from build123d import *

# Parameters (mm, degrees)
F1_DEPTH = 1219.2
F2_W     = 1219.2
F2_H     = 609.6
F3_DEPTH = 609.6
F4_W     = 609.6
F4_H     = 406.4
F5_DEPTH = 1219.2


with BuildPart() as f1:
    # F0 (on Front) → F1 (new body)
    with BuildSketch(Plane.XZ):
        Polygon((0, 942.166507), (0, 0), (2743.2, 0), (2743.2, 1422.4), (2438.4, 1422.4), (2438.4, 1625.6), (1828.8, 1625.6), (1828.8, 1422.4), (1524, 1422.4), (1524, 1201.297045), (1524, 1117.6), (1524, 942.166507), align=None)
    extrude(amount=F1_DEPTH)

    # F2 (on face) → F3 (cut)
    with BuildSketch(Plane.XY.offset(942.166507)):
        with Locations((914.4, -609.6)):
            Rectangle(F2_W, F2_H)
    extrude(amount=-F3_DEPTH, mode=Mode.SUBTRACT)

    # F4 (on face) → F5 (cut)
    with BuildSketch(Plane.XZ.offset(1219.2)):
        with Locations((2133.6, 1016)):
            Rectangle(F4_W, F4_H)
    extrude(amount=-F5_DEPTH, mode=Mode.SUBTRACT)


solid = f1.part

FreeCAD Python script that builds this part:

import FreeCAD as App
import Part
import Sketcher

V = App.Vector
Q = App.Units.Quantity

doc = App.newDocument("Part")
params = doc.addObject("Spreadsheet::Sheet", "Params")
for row, (alias, value) in enumerate([
    ("sketch1_width", "108 in"),
    ("sketch1_width2", "12 in"),
    ("sketch1_width3", "24 in"),
    ("sketch1_height", "56 in"),
    ("sketch1_height2", "8 in"),
    ("pad1_length", "48 in"),
    ("sketch2_width", "48 in"),
    ("sketch2_height", "24 in"),
    ("pocket1_length", "24 in"),
    ("sketch3_width", "24 in"),
    ("sketch3_height", "16 in"),
    ("pocket2_length", "48 in"),
], start=1):
    params.set(f"A{row}", alias)
    params.set(f"B{row}", "=" + value)
    params.setAlias(f"B{row}", alias)

body = doc.addObject("PartDesign::Body", "Body")

# Sketch on XZ plane
sketch1 = body.newObject("Sketcher::SketchObject", "Sketch")
sketch1.AttachmentSupport = (doc.getObject("XZ_Plane"), [""])
sketch1.MapMode = "FlatFace"
sketch1.addGeometry(Part.LineSegment(V(0, 942, 0), V(0, 0, 0)), False)
sketch1.addGeometry(Part.LineSegment(V(0, 0, 0), V(2743, 0, 0)), False)
sketch1.addGeometry(Part.LineSegment(V(2743, 0, 0), V(2743, 1422, 0)), False)
sketch1.addGeometry(Part.LineSegment(V(2743, 1422, 0), V(2438, 1422, 0)), False)
sketch1.addGeometry(Part.LineSegment(V(2438, 1422, 0), V(2438, 1626, 0)), False)
sketch1.addGeometry(Part.LineSegment(V(2438, 1626, 0), V(1829, 1626, 0)), False)
sketch1.addGeometry(Part.LineSegment(V(1829, 1626, 0), V(1829, 1422, 0)), False)
sketch1.addGeometry(Part.LineSegment(V(1829, 1422, 0), V(1524, 1422, 0)), False)
sketch1.addGeometry(Part.LineSegment(V(1524, 1422, 0), V(1524, 942, 0)), False)
sketch1.addGeometry(Part.LineSegment(V(1524, 942, 0), V(0, 942, 0)), False)
sketch1.addConstraint(Sketcher.Constraint("Coincident", 0, 2, 1, 1))
sketch1.addConstraint(Sketcher.Constraint("Coincident", 1, 2, 2, 1))
sketch1.addConstraint(Sketcher.Constraint("Coincident", 2, 2, 3, 1))
sketch1.addConstraint(Sketcher.Constraint("Coincident", 3, 2, 4, 1))
sketch1.addConstraint(Sketcher.Constraint("Coincident", 4, 2, 5, 1))
sketch1.addConstraint(Sketcher.Constraint("Coincident", 5, 2, 6, 1))
sketch1.addConstraint(Sketcher.Constraint("Coincident", 6, 2, 7, 1))
sketch1.addConstraint(Sketcher.Constraint("Coincident", 7, 2, 8, 1))
sketch1.addConstraint(Sketcher.Constraint("Coincident", 8, 2, 9, 1))
sketch1.addConstraint(Sketcher.Constraint("Coincident", 9, 2, 0, 1))
sketch1.addConstraint(Sketcher.Constraint("Vertical", 0))
sketch1.addConstraint(Sketcher.Constraint("Horizontal", 1))
sketch1.addConstraint(Sketcher.Constraint("Vertical", 2))
sketch1.addConstraint(Sketcher.Constraint("Horizontal", 3))
sketch1.addConstraint(Sketcher.Constraint("Vertical", 4))
sketch1.addConstraint(Sketcher.Constraint("Horizontal", 5))
sketch1.addConstraint(Sketcher.Constraint("Vertical", 6))
sketch1.addConstraint(Sketcher.Constraint("Horizontal", 7))
sketch1.addConstraint(Sketcher.Constraint("Vertical", 8))
sketch1.addConstraint(Sketcher.Constraint("Horizontal", 9))
sketch1.addConstraint(Sketcher.Constraint("Coincident", 0, 2, -1, 1))
sketch1.addConstraint(Sketcher.Constraint("Horizontal", 3, 2, 6, 2))
sketch1.addConstraint(Sketcher.Constraint("Equal", 3, 7))
sketch1.addConstraint(Sketcher.Constraint("DistanceX", 1, 1, 1, 2, Q("108 in")))
sketch1.addConstraint(Sketcher.Constraint("DistanceX", 3, 2, 3, 1, Q("12 in")))
sketch1.addConstraint(Sketcher.Constraint("DistanceX", 5, 2, 5, 1, Q("24 in")))
sketch1.addConstraint(Sketcher.Constraint("DistanceY", 2, 1, 2, 2, Q("56 in")))
sketch1.addConstraint(Sketcher.Constraint("DistanceY", 4, 1, 4, 2, Q("8 in")))
sketch1.addConstraint(Sketcher.Constraint("DistanceY", 0, 2, 0, 1, 942.166507))
sketch1.setExpression("Constraints[23]", "Params.sketch1_width")
sketch1.setExpression("Constraints[24]", "Params.sketch1_width2")
sketch1.setExpression("Constraints[25]", "Params.sketch1_width3")
sketch1.setExpression("Constraints[26]", "Params.sketch1_height")
sketch1.setExpression("Constraints[27]", "Params.sketch1_height2")
pad1 = body.newObject("PartDesign::Pad", "Pad")
pad1.Profile = sketch1
pad1.setExpression("Length", "Params.pad1_length")

# Sketch on XY plane
sketch2 = body.newObject("Sketcher::SketchObject", "Sketch001")
sketch2.AttachmentSupport = (doc.getObject("XY_Plane"), [""])
sketch2.MapMode = "FlatFace"
sketch2.AttachmentOffset = App.Placement(V(0, 0, 942.166507), App.Rotation())
sketch2.addGeometry(Part.LineSegment(V(305, -305, 0), V(305, -914, 0)), False)
sketch2.addGeometry(Part.LineSegment(V(305, -914, 0), V(1524, -914, 0)), False)
sketch2.addGeometry(Part.LineSegment(V(1524, -914, 0), V(1524, -305, 0)), False)
sketch2.addGeometry(Part.LineSegment(V(1524, -305, 0), V(305, -305, 0)), False)
sketch2.addConstraint(Sketcher.Constraint("Coincident", 0, 2, 1, 1))
sketch2.addConstraint(Sketcher.Constraint("Coincident", 1, 2, 2, 1))
sketch2.addConstraint(Sketcher.Constraint("Coincident", 2, 2, 3, 1))
sketch2.addConstraint(Sketcher.Constraint("Coincident", 3, 2, 0, 1))
sketch2.addConstraint(Sketcher.Constraint("Vertical", 0))
sketch2.addConstraint(Sketcher.Constraint("Horizontal", 1))
sketch2.addConstraint(Sketcher.Constraint("Vertical", 2))
sketch2.addConstraint(Sketcher.Constraint("Horizontal", 3))
sketch2.addConstraint(Sketcher.Constraint("DistanceX", 1, 1, 1, 2, Q("48 in")))
sketch2.addConstraint(Sketcher.Constraint("DistanceY", 0, 2, 0, 1, Q("24 in")))
sketch2.addConstraint(Sketcher.Constraint("DistanceX", -1, 1, 0, 2, Q("12 in")))
sketch2.addConstraint(Sketcher.Constraint("DistanceY", 0, 2, -1, 1, Q("36 in")))
sketch2.setExpression("Constraints[8]", "Params.sketch2_width")
sketch2.setExpression("Constraints[9]", "Params.sketch2_height")
pocket1 = body.newObject("PartDesign::Pocket", "Pocket")
pocket1.Profile = sketch2
pocket1.setExpression("Length", "Params.pocket1_length")

# Sketch on XZ plane
sketch3 = body.newObject("Sketcher::SketchObject", "Sketch002")
sketch3.AttachmentSupport = (doc.getObject("XZ_Plane"), [""])
sketch3.MapMode = "FlatFace"
sketch3.AttachmentOffset = App.Placement(V(0, 0, 48 * 25.4), App.Rotation())
sketch3.addGeometry(Part.LineSegment(V(1829, 1219, 0), V(1829, 813, 0)), False)
sketch3.addGeometry(Part.LineSegment(V(1829, 813, 0), V(2438, 813, 0)), False)
sketch3.addGeometry(Part.LineSegment(V(2438, 813, 0), V(2438, 1219, 0)), False)
sketch3.addGeometry(Part.LineSegment(V(2438, 1219, 0), V(1829, 1219, 0)), False)
sketch3.addConstraint(Sketcher.Constraint("Coincident", 0, 2, 1, 1))
sketch3.addConstraint(Sketcher.Constraint("Coincident", 1, 2, 2, 1))
sketch3.addConstraint(Sketcher.Constraint("Coincident", 2, 2, 3, 1))
sketch3.addConstraint(Sketcher.Constraint("Coincident", 3, 2, 0, 1))
sketch3.addConstraint(Sketcher.Constraint("Vertical", 0))
sketch3.addConstraint(Sketcher.Constraint("Horizontal", 1))
sketch3.addConstraint(Sketcher.Constraint("Vertical", 2))
sketch3.addConstraint(Sketcher.Constraint("Horizontal", 3))
sketch3.addConstraint(Sketcher.Constraint("DistanceX", 1, 1, 1, 2, Q("24 in")))
sketch3.addConstraint(Sketcher.Constraint("DistanceY", 0, 2, 0, 1, Q("16 in")))
sketch3.addConstraint(Sketcher.Constraint("DistanceX", -1, 1, 0, 2, Q("72 in")))
sketch3.addConstraint(Sketcher.Constraint("DistanceY", -1, 1, 0, 2, Q("32 in")))
sketch3.setExpression("Constraints[8]", "Params.sketch3_width")
sketch3.setExpression("Constraints[9]", "Params.sketch3_height")
pocket2 = body.newObject("PartDesign::Pocket", "Pocket001")
pocket2.Profile = sketch3
pocket2.setExpression("Length", "Params.pocket2_length")

doc.recompute()
